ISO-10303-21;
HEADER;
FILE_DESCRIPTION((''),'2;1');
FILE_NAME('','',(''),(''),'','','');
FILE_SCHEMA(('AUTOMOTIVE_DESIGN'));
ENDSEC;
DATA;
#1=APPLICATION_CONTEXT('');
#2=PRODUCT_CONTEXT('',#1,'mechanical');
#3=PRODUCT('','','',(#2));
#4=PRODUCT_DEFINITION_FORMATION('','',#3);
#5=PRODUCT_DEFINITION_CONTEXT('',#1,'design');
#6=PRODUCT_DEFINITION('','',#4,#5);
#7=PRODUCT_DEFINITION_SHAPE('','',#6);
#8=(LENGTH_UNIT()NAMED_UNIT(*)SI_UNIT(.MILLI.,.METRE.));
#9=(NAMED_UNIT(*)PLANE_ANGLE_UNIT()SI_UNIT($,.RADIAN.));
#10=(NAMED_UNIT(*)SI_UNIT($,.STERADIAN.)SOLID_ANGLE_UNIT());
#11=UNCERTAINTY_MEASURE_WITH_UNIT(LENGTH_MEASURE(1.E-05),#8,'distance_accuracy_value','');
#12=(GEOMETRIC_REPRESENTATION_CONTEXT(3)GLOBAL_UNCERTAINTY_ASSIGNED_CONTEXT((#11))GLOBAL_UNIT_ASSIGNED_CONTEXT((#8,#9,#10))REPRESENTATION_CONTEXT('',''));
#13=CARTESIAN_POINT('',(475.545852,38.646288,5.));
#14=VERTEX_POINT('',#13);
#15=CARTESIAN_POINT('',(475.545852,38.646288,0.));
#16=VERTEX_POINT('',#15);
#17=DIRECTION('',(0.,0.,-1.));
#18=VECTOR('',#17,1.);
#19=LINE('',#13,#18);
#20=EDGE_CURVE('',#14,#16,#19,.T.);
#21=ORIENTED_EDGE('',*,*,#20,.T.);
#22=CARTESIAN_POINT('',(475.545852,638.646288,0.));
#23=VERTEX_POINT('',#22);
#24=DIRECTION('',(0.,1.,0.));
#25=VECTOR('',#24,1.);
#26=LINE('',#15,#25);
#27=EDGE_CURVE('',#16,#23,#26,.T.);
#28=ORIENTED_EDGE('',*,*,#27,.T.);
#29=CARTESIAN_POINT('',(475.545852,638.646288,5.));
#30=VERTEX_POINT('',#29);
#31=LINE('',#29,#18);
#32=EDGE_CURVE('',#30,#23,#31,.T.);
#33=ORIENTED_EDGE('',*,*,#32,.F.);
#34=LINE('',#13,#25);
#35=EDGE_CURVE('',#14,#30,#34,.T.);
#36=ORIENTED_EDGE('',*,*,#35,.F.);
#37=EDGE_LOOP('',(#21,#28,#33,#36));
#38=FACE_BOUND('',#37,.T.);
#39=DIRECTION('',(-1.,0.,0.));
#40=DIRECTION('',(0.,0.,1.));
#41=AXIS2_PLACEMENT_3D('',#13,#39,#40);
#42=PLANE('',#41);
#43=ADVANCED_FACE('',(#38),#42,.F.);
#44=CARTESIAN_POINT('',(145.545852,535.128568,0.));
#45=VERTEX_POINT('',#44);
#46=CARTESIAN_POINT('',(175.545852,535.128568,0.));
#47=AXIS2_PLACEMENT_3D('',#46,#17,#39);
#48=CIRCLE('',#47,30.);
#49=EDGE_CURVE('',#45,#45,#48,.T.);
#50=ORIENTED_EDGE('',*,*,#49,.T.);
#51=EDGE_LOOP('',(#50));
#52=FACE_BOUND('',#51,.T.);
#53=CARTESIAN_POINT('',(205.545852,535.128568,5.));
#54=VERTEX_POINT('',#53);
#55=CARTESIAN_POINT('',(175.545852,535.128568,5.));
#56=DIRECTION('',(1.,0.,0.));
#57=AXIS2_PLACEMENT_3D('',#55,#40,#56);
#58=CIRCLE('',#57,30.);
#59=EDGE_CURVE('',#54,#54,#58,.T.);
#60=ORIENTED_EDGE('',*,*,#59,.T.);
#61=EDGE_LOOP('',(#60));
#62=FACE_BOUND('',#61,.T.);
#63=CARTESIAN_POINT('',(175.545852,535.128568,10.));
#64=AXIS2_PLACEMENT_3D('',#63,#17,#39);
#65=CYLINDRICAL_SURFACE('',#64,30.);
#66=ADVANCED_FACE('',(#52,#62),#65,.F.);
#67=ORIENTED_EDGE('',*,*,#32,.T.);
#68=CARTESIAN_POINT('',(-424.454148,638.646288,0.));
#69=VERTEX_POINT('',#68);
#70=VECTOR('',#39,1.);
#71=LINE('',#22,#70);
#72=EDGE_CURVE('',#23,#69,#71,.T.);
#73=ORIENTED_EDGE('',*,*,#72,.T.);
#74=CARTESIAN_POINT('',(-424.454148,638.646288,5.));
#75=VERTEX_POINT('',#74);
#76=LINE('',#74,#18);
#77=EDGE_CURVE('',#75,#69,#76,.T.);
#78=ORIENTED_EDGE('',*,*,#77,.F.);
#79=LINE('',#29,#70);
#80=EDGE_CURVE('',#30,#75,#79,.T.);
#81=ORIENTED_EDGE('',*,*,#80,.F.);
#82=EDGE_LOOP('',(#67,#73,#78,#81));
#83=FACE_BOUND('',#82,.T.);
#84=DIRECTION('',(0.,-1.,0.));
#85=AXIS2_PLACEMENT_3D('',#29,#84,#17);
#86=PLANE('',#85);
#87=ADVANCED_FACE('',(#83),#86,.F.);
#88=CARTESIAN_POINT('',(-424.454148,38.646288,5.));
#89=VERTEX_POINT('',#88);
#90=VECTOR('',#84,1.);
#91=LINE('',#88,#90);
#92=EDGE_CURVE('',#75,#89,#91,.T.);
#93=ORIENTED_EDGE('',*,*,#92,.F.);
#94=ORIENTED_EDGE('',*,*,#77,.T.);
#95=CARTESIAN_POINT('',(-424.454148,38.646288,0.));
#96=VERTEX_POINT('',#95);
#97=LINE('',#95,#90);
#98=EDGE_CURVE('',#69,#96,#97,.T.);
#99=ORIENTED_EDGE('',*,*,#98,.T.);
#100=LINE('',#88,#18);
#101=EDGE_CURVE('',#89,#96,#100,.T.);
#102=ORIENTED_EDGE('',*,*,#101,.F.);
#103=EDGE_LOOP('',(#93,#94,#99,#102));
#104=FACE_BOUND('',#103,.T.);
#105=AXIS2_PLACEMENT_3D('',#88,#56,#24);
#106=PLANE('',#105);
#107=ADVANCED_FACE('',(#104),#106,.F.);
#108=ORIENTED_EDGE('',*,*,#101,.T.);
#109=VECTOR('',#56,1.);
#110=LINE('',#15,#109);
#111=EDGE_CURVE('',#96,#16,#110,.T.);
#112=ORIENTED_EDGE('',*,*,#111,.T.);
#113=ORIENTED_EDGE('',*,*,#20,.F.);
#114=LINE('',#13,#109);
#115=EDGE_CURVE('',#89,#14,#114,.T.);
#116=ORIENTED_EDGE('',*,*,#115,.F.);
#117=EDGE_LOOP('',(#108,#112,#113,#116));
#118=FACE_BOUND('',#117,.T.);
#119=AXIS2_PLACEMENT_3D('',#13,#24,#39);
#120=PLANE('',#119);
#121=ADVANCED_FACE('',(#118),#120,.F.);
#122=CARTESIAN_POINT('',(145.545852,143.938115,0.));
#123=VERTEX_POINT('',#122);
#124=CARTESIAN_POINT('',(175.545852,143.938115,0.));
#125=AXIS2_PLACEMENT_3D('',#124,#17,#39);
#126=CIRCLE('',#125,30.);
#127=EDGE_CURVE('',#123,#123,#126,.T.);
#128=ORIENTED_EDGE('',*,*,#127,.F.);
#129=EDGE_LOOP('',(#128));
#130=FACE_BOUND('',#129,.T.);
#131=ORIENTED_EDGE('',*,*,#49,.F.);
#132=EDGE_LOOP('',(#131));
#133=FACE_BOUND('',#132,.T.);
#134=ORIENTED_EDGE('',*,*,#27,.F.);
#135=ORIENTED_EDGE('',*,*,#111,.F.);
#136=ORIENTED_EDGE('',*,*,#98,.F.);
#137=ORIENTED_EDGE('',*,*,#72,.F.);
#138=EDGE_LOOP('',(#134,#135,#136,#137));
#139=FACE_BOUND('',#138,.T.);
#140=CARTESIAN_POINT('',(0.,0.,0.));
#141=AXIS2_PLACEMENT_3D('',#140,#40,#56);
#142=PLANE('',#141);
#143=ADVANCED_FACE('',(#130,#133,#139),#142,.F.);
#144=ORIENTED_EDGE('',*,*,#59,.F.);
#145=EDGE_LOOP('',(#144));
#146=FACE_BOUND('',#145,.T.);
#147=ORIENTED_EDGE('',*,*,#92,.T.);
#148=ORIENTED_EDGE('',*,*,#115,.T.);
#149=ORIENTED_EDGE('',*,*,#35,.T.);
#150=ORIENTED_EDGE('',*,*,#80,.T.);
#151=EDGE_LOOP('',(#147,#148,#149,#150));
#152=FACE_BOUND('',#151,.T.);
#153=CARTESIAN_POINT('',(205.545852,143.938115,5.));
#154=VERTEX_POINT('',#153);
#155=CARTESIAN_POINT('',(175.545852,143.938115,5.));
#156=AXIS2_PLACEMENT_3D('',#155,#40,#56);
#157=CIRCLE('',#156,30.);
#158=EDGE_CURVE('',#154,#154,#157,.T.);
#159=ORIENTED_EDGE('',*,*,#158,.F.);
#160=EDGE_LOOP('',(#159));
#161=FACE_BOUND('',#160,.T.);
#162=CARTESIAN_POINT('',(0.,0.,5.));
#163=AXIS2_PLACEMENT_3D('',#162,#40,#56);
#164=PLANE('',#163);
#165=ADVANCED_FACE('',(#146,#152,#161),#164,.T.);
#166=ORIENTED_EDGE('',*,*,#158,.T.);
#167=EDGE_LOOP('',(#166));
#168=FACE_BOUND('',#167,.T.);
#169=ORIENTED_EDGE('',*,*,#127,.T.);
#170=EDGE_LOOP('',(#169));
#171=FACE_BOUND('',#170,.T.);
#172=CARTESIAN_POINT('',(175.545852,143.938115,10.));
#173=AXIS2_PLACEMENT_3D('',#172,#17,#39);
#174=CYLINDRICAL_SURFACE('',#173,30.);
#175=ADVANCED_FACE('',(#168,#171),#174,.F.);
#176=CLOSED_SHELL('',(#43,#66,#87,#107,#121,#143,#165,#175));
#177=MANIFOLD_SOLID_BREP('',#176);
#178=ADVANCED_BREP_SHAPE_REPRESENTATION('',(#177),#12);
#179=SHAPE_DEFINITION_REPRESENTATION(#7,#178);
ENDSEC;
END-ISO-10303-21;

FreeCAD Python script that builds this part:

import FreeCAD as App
import Part
import Sketcher
from FreeCAD import Vector

doc = App.newDocument("Part")
body = doc.addObject("PartDesign::Body", "Body")

sketch1 = doc.addObject("Sketcher::SketchObject", "Sketch")
body.addObject(sketch1)
sketch1.AttachmentSupport = (doc.XY_Plane, [""])
sketch1.MapMode = "FlatFace"
sketch1.addGeometry([
    Part.LineSegment(Vector(-424, 639, 0), Vector(-424, 39, 0)),
    Part.LineSegment(Vector(-424, 39, 0), Vector(476, 39, 0)),
    Part.LineSegment(Vector(476, 39, 0), Vector(476, 639, 0)),
    Part.LineSegment(Vector(476, 639, 0), Vector(-424, 639, 0)),
], False)
sketch1.addConstraint([
    Sketcher.Constraint("Coincident", 0, 2, 1, 1),
    Sketcher.Constraint("Coincident", 1, 2, 2, 1),
    Sketcher.Constraint("Coincident", 2, 2, 3, 1),
    Sketcher.Constraint("Coincident", 3, 2, 0, 1),
    Sketcher.Constraint("Vertical", 0),
    Sketcher.Constraint("Horizontal", 1),
    Sketcher.Constraint("Vertical", 2),
    Sketcher.Constraint("Horizontal", 3),
    Sketcher.Constraint("DistanceX", 1, 1, 1, 2, 900.0),
    Sketcher.Constraint("DistanceY", 0, 2, 0, 1, 600.0),
    Sketcher.Constraint("DistanceX", 0, 2, -1, 1, 424.454148),
    Sketcher.Constraint("DistanceY", -1, 1, 0, 2, 38.646288),
])
pad1 = doc.addObject("PartDesign::Pad", "Pad")
body.addObject(pad1)
pad1.Profile = sketch1
pad1.Length = 5

sketch2 = doc.addObject("Sketcher::SketchObject", "Sketch001")
body.addObject(sketch2)
sketch2.AttachmentSupport = (doc.XY_Plane, [""])
sketch2.MapMode = "FlatFace"
sketch2.addGeometry(Part.Circle(Vector(176, 535, 0), Vector(0, 0, 1), 30), False)
sketch2.addConstraint([
    Sketcher.Constraint("Diameter", 0, 60.0),
    Sketcher.Constraint("DistanceX", -1, 1, 0, 3, 175.545852),
    Sketcher.Constraint("DistanceY", -1, 1, 0, 3, 535.128568),
])
pocket1 = doc.addObject("PartDesign::Pocket", "Pocket")
body.addObject(pocket1)
pocket1.Profile = sketch2
pocket1.Length = 10
pocket1.Reversed = True

sketch3 = doc.addObject("Sketcher::SketchObject", "Sketch002")
body.addObject(sketch3)
sketch3.AttachmentSupport = (doc.XY_Plane, [""])
sketch3.MapMode = "FlatFace"
sketch3.addGeometry(Part.Circle(Vector(176, 144, 0), Vector(0, 0, 1), 30), False)
sketch3.addConstraint([
    Sketcher.Constraint("Diameter", 0, 60.0),
    Sketcher.Constraint("DistanceX", -1, 1, 0, 3, 175.545852),
    Sketcher.Constraint("DistanceY", -1, 1, 0, 3, 143.938115),
])
pocket2 = doc.addObject("PartDesign::Pocket", "Pocket001")
body.addObject(pocket2)
pocket2.Profile = sketch3
pocket2.Length = 10
pocket2.Reversed = True

doc.recompute()
